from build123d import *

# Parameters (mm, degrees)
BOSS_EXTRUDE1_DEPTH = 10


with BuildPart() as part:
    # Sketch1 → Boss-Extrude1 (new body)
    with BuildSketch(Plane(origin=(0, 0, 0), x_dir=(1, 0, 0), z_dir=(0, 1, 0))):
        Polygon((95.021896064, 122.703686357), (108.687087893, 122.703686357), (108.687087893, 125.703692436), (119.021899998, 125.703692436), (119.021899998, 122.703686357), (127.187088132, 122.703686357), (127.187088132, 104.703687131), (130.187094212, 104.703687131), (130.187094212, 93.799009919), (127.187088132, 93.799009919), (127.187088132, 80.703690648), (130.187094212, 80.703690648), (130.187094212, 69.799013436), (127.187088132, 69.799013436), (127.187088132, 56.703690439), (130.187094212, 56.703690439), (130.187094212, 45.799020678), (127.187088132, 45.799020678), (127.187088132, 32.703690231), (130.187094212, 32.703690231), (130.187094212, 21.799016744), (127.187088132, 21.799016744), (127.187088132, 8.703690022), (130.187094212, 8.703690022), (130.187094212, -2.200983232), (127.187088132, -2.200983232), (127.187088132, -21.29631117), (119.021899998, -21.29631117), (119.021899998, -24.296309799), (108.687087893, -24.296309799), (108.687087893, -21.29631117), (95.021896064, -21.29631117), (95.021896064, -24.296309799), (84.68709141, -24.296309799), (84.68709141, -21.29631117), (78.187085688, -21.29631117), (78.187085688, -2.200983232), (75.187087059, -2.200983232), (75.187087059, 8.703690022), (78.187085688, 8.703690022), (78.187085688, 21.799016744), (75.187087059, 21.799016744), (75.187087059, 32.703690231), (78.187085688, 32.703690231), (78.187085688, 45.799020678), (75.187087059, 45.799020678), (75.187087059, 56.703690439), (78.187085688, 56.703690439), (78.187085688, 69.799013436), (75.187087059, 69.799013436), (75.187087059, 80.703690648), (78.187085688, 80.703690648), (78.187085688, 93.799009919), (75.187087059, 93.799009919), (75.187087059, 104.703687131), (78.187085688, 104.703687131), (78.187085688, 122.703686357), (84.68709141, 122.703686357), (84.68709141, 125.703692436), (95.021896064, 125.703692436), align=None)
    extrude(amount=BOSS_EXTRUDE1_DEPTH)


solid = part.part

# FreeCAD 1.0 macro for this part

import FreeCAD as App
import Part
import Sketcher

V = App.Vector

doc = App.newDocument("Part")
body = doc.addObject("PartDesign::Body", "Body")

# Sketch on XZ plane
sketch1 = body.newObject("Sketcher::SketchObject", "Sketch")
sketch1.AttachmentSupport = (doc.getObject("XZ_Plane"), [""])
sketch1.MapMode = "FlatFace"
sketch1.addGeometry([
    Part.LineSegment(V(108.7, -122.7, 0), V(95, -122.7, 0)),  # 0
    Part.LineSegment(V(95, -122.7, 0), V(95, -125.7, 0)),  # 1
    Part.LineSegment(V(95, -125.7, 0), V(84.7, -125.7, 0)),  # 2
    Part.LineSegment(V(84.7, -125.7, 0), V(84.7, -122.7, 0)),  # 3
    Part.LineSegment(V(84.7, -122.7, 0), V(78.2, -122.7, 0)),  # 4
    Part.LineSegment(V(78.2, -122.7, 0), V(78.2, -104.7, 0)),  # 5
    Part.LineSegment(V(78.2, -104.7, 0), V(75.2, -104.7, 0)),  # 6
    Part.LineSegment(V(75.2, -104.7, 0), V(75.2, -93.8, 0)),  # 7
    Part.LineSegment(V(75.2, -93.8, 0), V(78.2, -93.8, 0)),  # 8
    Part.LineSegment(V(78.2, -93.8, 0), V(78.2, -80.7, 0)),  # 9
    Part.LineSegment(V(78.2, -80.7, 0), V(75.2, -80.7, 0)),  # 10
    Part.LineSegment(V(75.2, -80.7, 0), V(75.2, -69.8, 0)),  # 11
    Part.LineSegment(V(75.2, -69.8, 0), V(78.2, -69.8, 0)),  # 12
    Part.LineSegment(V(78.2, -69.8, 0), V(78.2, -56.7, 0)),  # 13
    Part.LineSegment(V(78.2, -56.7, 0), V(75.2, -56.7, 0)),  # 14
    Part.LineSegment(V(75.2, -56.7, 0), V(75.2, -45.8, 0)),  # 15
    Part.LineSegment(V(75.2, -45.8, 0), V(78.2, -45.8, 0)),  # 16
    Part.LineSegment(V(78.2, -45.8, 0), V(78.2, -32.7, 0)),  # 17
    Part.LineSegment(V(78.2, -32.7, 0), V(75.2, -32.7, 0)),  # 18
    Part.LineSegment(V(75.2, -32.7, 0), V(75.2, -21.8, 0)),  # 19
    Part.LineSegment(V(75.2, -21.8, 0), V(78.2, -21.8, 0)),  # 20
    Part.LineSegment(V(78.2, -21.8, 0), V(78.2, -8.7, 0)),  # 21
    Part.LineSegment(V(78.2, -8.7, 0), V(75.2, -8.7, 0)),  # 22
    Part.LineSegment(V(75.2, -8.7, 0), V(75.2, 2.2, 0)),  # 23
    Part.LineSegment(V(75.2, 2.2, 0), V(78.2, 2.2, 0)),  # 24
    Part.LineSegment(V(78.2, 2.2, 0), V(78.2, 21.3, 0)),  # 25
    Part.LineSegment(V(78.2, 21.3, 0), V(84.7, 21.3, 0)),  # 26
    Part.LineSegment(V(84.7, 21.3, 0), V(84.7, 24.3, 0)),  # 27
    Part.LineSegment(V(84.7, 24.3, 0), V(95, 24.3, 0)),  # 28
    Part.LineSegment(V(95, 24.3, 0), V(95, 21.3, 0)),  # 29
    Part.LineSegment(V(95, 21.3, 0), V(108.7, 21.3, 0)),  # 30
    Part.LineSegment(V(108.7, 21.3, 0), V(108.7, 24.3, 0)),  # 31
    Part.LineSegment(V(108.7, 24.3, 0), V(119, 24.3, 0)),  # 32
    Part.LineSegment(V(119, 24.3, 0), V(119, 21.3, 0)),  # 33
    Part.LineSegment(V(119, 21.3, 0), V(127.2, 21.3, 0)),  # 34
    Part.LineSegment(V(127.2, 21.3, 0), V(127.2, 2.2, 0)),  # 35
    Part.LineSegment(V(127.2, 2.2, 0), V(130.2, 2.2, 0)),  # 36
    Part.LineSegment(V(130.2, 2.2, 0), V(130.2, -8.7, 0)),  # 37
    Part.LineSegment(V(130.2, -8.7, 0), V(127.2, -8.7, 0)),  # 38
    Part.LineSegment(V(127.2, -8.7, 0), V(127.2, -21.8, 0)),  # 39
    Part.LineSegment(V(127.2, -21.8, 0), V(130.2, -21.8, 0)),  # 40
    Part.LineSegment(V(130.2, -21.8, 0), V(130.2, -32.7, 0)),  # 41
    Part.LineSegment(V(130.2, -32.7, 0), V(127.2, -32.7, 0)),  # 42
    Part.LineSegment(V(127.2, -32.7, 0), V(127.2, -45.8, 0)),  # 43
    Part.LineSegment(V(127.2, -45.8, 0), V(130.2, -45.8, 0)),  # 44
    Part.LineSegment(V(130.2, -45.8, 0), V(130.2, -56.7, 0)),  # 45
    Part.LineSegment(V(130.2, -56.7, 0), V(127.2, -56.7, 0)),  # 46
    Part.LineSegment(V(127.2, -56.7, 0), V(127.2, -69.8, 0)),  # 47
    Part.LineSegment(V(127.2, -69.8, 0), V(130.2, -69.8, 0)),  # 48
    Part.LineSegment(V(130.2, -69.8, 0), V(130.2, -80.7, 0)),  # 49
    Part.LineSegment(V(130.2, -80.7, 0), V(127.2, -80.7, 0)),  # 50
    Part.LineSegment(V(127.2, -80.7, 0), V(127.2, -93.8, 0)),  # 51
    Part.LineSegment(V(127.2, -93.8, 0), V(130.2, -93.8, 0)),  # 52
    Part.LineSegment(V(130.2, -93.8, 0), V(130.2, -104.7, 0)),  # 53
    Part.LineSegment(V(130.2, -104.7, 0), V(127.2, -104.7, 0)),  # 54
    Part.LineSegment(V(127.2, -104.7, 0), V(127.2, -122.7, 0)),  # 55
    Part.LineSegment(V(127.2, -122.7, 0), V(119, -122.7, 0)),  # 56
    Part.LineSegment(V(119, -122.7, 0), V(119, -125.7, 0)),  # 57
    Part.LineSegment(V(119, -125.7, 0), V(108.7, -125.7, 0)),  # 58
    Part.LineSegment(V(108.7, -125.7, 0), V(108.7, -122.7, 0)),  # 59
], False)
sketch1.addConstraint([
    Sketcher.Constraint("Coincident", 0, 2, 1, 1),
    Sketcher.Constraint("Coincident", 1, 2, 2, 1),
    Sketcher.Constraint("Coincident", 2, 2, 3, 1),
    Sketcher.Constraint("Coincident", 3, 2, 4, 1),
    Sketcher.Constraint("Coincident", 4, 2, 5, 1),
    Sketcher.Constraint("Coincident", 5, 2, 6, 1),
    Sketcher.Constraint("Coincident", 6, 2, 7, 1),
    Sketcher.Constraint("Coincident", 7, 2, 8, 1),
    Sketcher.Constraint("Coincident", 8, 2, 9, 1),
    Sketcher.Constraint("Coincident", 9, 2, 10, 1),
    Sketcher.Constraint("Coincident", 10, 2, 11, 1),
    Sketcher.Constraint("Coincident", 11, 2, 12, 1),
    Sketcher.Constraint("Coincident", 12, 2, 13, 1),
    Sketcher.Constraint("Coincident", 13, 2, 14, 1),
    Sketcher.Constraint("Coincident", 14, 2, 15, 1),
    Sketcher.Constraint("Coincident", 15, 2, 16, 1),
    Sketcher.Constraint("Coincident", 16, 2, 17, 1),
    Sketcher.Constraint("Coincident", 17, 2, 18, 1),
    Sketcher.Constraint("Coincident", 18, 2, 19, 1),
    Sketcher.Constraint("Coincident", 19, 2, 20, 1),
    Sketcher.Constraint("Coincident", 20, 2, 21, 1),
    Sketcher.Constraint("Coincident", 21, 2, 22, 1),
    Sketcher.Constraint("Coincident", 22, 2, 23, 1),
    Sketcher.Constraint("Coincident", 23, 2, 24, 1),
    Sketcher.Constraint("Coincident", 24, 2, 25, 1),
    Sketcher.Constraint("Coincident", 25, 2, 26, 1),
    Sketcher.Constraint("Coincident", 26, 2, 27, 1),
    Sketcher.Constraint("Coincident", 27, 2, 28, 1),
    Sketcher.Constraint("Coincident", 28, 2, 29, 1),
    Sketcher.Constraint("Coincident", 29, 2, 30, 1),
    Sketcher.Constraint("Coincident", 30, 2, 31, 1),
    Sketcher.Constraint("Coincident", 31, 2, 32, 1),
    Sketcher.Constraint("Coincident", 32, 2, 33, 1),
    Sketcher.Constraint("Coincident", 33, 2, 34, 1),
    Sketcher.Constraint("Coincident", 34, 2, 35, 1),
    Sketcher.Constraint("Coincident", 35, 2, 36, 1),
    Sketcher.Constraint("Coincident", 36, 2, 37, 1),
    Sketcher.Constraint("Coincident", 37, 2, 38, 1),
    Sketcher.Constraint("Coincident", 38, 2, 39, 1),
    Sketcher.Constraint("Coincident", 39, 2, 40, 1),
    Sketcher.Constraint("Coincident", 40, 2, 41, 1),
    Sketcher.Constraint("Coincident", 41, 2, 42, 1),
    Sketcher.Constraint("Coincident", 42, 2, 43, 1),
    Sketcher.Constraint("Coincident", 43, 2, 44, 1),
    Sketcher.Constraint("Coincident", 44, 2, 45, 1),
    Sketcher.Constraint("Coincident", 45, 2, 46, 1),
    Sketcher.Constraint("Coincident", 46, 2, 47, 1),
    Sketcher.Constraint("Coincident", 47, 2, 48, 1),
    Sketcher.Constraint("Coincident", 48, 2, 49, 1),
    Sketcher.Constraint("Coincident", 49, 2, 50, 1),
    Sketcher.Constraint("Coincident", 50, 2, 51, 1),
    Sketcher.Constraint("Coincident", 51, 2, 52, 1),
    Sketcher.Constraint("Coincident", 52, 2, 53, 1),
    Sketcher.Constraint("Coincident", 53, 2, 54, 1),
    Sketcher.Constraint("Coincident", 54, 2, 55, 1),
    Sketcher.Constraint("Coincident", 55, 2, 56, 1),
    Sketcher.Constraint("Coincident", 56, 2, 57, 1),
    Sketcher.Constraint("Coincident", 57, 2, 58, 1),
    Sketcher.Constraint("Coincident", 58, 2, 59, 1),
    Sketcher.Constraint("Coincident", 59, 2, 0, 1),
    Sketcher.Constraint("Horizontal", 0),
    Sketcher.Constraint("Vertical", 1),
    Sketcher.Constraint("Horizontal", 2),
    Sketcher.Constraint("Vertical", 3),
    Sketcher.Constraint("Horizontal", 4),
    Sketcher.Constraint("Vertical", 5),
    Sketcher.Constraint("Horizontal", 6),
    Sketcher.Constraint("Vertical", 7),
    Sketcher.Constraint("Horizontal", 8),
    Sketcher.Constraint("Vertical", 9),
    Sketcher.Constraint("Horizontal", 10),
    Sketcher.Constraint("Vertical", 11),
    Sketcher.Constraint("Horizontal", 12),
    Sketcher.Constraint("Vertical", 13),
    Sketcher.Constraint("Horizontal", 14),
    Sketcher.Constraint("Vertical", 15),
    Sketcher.Constraint("Horizontal", 16),
    Sketcher.Constraint("Vertical", 17),
    Sketcher.Constraint("Horizontal", 18),
    Sketcher.Constraint("Vertical", 19),
    Sketcher.Constraint("Horizontal", 20),
    Sketcher.Constraint("Vertical", 21),
    Sketcher.Constraint("Horizontal", 22),
    Sketcher.Constraint("Vertical", 23),
    Sketcher.Constraint("Horizontal", 24),
    Sketcher.Constraint("Vertical", 25),
    Sketcher.Constraint("Horizontal", 26),
    Sketcher.Constraint("Vertical", 27),
    Sketcher.Constraint("Horizontal", 28),
    Sketcher.Constraint("Vertical", 29),
    Sketcher.Constraint("Horizontal", 30),
    Sketcher.Constraint("Vertical", 31),
    Sketcher.Constraint("Horizontal", 32),
    Sketcher.Constraint("Vertical", 33),
    Sketcher.Constraint("Horizontal", 34),
    Sketcher.Constraint("Vertical", 35),
    Sketcher.Constraint("Horizontal", 36),
    Sketcher.Constraint("Vertical", 37),
    Sketcher.Constraint("Horizontal", 38),
    Sketcher.Constraint("Vertical", 39),
    Sketcher.Constraint("Horizontal", 40),
    Sketcher.Constraint("Vertical", 41),
    Sketcher.Constraint("Horizontal", 42),
    Sketcher.Constraint("Vertical", 43),
    Sketcher.Constraint("Horizontal", 44),
    Sketcher.Constraint("Vertical", 45),
    Sketcher.Constraint("Horizontal", 46),
    Sketcher.Constraint("Vertical", 47),
    Sketcher.Constraint("Horizontal", 48),
    Sketcher.Constraint("Vertical", 49),
    Sketcher.Constraint("Horizontal", 50),
    Sketcher.Constraint("Vertical", 51),
    Sketcher.Constraint("Horizontal", 52),
    Sketcher.Constraint("Vertical", 53),
    Sketcher.Constraint("Horizontal", 54),
    Sketcher.Constraint("Vertical", 55),
    Sketcher.Constraint("Horizontal", 56),
    Sketcher.Constraint("Vertical", 57),
    Sketcher.Constraint("Horizontal", 58),
    Sketcher.Constraint("Vertical", 59),
    Sketcher.Constraint("Horizontal", 0, 2, 3, 2),
    Sketcher.Constraint("Horizontal", 26, 2, 29, 2),
    Sketcher.Constraint("Horizontal", 28, 2, 31, 2),
    Sketcher.Constraint("Horizontal", 30, 2, 33, 2),
    Sketcher.Constraint("Horizontal", 24, 2, 35, 2),
    Sketcher.Constraint("Horizontal", 22, 2, 37, 2),
    Sketcher.Constraint("Horizontal", 20, 2, 39, 2),
    Sketcher.Constraint("Horizontal", 18, 2, 41, 2),
    Sketcher.Constraint("Horizontal", 16, 2, 43, 2),
    Sketcher.Constraint("Horizontal", 14, 2, 45, 2),
    Sketcher.Constraint("Horizontal", 12, 2, 47, 2),
    Sketcher.Constraint("Horizontal", 10, 2, 49, 2),
    Sketcher.Constraint("Horizontal", 8, 2, 51, 2),
    Sketcher.Constraint("Horizontal", 6, 2, 53, 2),
    Sketcher.Constraint("Horizontal", 4, 2, 55, 2),
    Sketcher.Constraint("Horizontal", 2, 2, 57, 2),
    Sketcher.Constraint("Vertical", 5, 2, 8, 2),
    Sketcher.Constraint("Vertical", 7, 2, 10, 2),
    Sketcher.Constraint("Vertical", 9, 2, 12, 2),
    Sketcher.Constraint("Vertical", 11, 2, 14, 2),
    Sketcher.Constraint("Vertical", 13, 2, 16, 2),
    Sketcher.Constraint("Vertical", 15, 2, 18, 2),
    Sketcher.Constraint("Vertical", 17, 2, 20, 2),
    Sketcher.Constraint("Vertical", 19, 2, 22, 2),
    Sketcher.Constraint("Vertical", 21, 2, 24, 2),
    Sketcher.Constraint("Vertical", 3, 2, 26, 2),
    Sketcher.Constraint("Vertical", 1, 2, 28, 2),
    Sketcher.Constraint("Vertical", 35, 2, 38, 2),
    Sketcher.Constraint("Vertical", 37, 2, 40, 2),
    Sketcher.Constraint("Vertical", 39, 2, 42, 2),
    Sketcher.Constraint("Vertical", 41, 2, 44, 2),
    Sketcher.Constraint("Vertical", 43, 2, 46, 2),
    Sketcher.Constraint("Vertical", 45, 2, 48, 2),
    Sketcher.Constraint("Vertical", 47, 2, 50, 2),
    Sketcher.Constraint("Vertical", 49, 2, 52, 2),
    Sketcher.Constraint("Vertical", 51, 2, 54, 2),
    Sketcher.Constraint("Vertical", 33, 2, 56, 2),
    Sketcher.Constraint("Vertical", 31, 2, 58, 2),
    Sketcher.Constraint("Equal", 54, 1),
    Sketcher.Constraint("Equal", 7, 11),
    Sketcher.Constraint("Equal", 19, 23),
    Sketcher.Constraint("Equal", 24, 27),
    Sketcher.Constraint("DistanceX", 6, 2, 6, 1, 2.999999),
    Sketcher.Constraint("DistanceY", 5, 1, 5, 2, 17.999999),
    Sketcher.Constraint("DistanceY", 9, 2, 13, 2, 24.0),
    Sketcher.Constraint("DistanceY", 13, 2, 17, 2, 24.0),
    Sketcher.Constraint("DistanceY", 17, 2, 21, 2, 24.0),
    Sketcher.Constraint("DistanceY", 21, 2, 25, 2, 30.000001),
    Sketcher.Constraint("DistanceX", 30, 2, 34, 2, 18.5),
    Sketcher.Constraint("DistanceX", 0, 2, 0, 1, 13.665192),
    Sketcher.Constraint("DistanceX", 34, 1, 34, 2, 8.165188),
    Sketcher.Constraint("DistanceY", 9, 1, 9, 2, 13.095319),
    Sketcher.Constraint("DistanceY", 15, 1, 15, 2, 10.90467),
    Sketcher.Constraint("DistanceX", -1, 1, 32, 2, 119.0219),
    Sketcher.Constraint("DistanceX", 2, 2, 2, 1, 10.334805),
    Sketcher.Constraint("DistanceX", 4, 2, 4, 1, 6.500006),
    Sketcher.Constraint("DistanceX", 36, 1, 36, 2, 3.000006),
    Sketcher.Constraint("DistanceY", 7, 1, 7, 2, 10.904677),
    Sketcher.Constraint("DistanceY", 19, 1, 19, 2, 10.904673),
    Sketcher.Constraint("DistanceY", 7, 2, -1, 1, 93.79901),
])
pad1 = body.newObject("PartDesign::Pad", "Pad")
pad1.Profile = sketch1
pad1.Length = 10
pad1.Reversed = True

doc.recompute()
